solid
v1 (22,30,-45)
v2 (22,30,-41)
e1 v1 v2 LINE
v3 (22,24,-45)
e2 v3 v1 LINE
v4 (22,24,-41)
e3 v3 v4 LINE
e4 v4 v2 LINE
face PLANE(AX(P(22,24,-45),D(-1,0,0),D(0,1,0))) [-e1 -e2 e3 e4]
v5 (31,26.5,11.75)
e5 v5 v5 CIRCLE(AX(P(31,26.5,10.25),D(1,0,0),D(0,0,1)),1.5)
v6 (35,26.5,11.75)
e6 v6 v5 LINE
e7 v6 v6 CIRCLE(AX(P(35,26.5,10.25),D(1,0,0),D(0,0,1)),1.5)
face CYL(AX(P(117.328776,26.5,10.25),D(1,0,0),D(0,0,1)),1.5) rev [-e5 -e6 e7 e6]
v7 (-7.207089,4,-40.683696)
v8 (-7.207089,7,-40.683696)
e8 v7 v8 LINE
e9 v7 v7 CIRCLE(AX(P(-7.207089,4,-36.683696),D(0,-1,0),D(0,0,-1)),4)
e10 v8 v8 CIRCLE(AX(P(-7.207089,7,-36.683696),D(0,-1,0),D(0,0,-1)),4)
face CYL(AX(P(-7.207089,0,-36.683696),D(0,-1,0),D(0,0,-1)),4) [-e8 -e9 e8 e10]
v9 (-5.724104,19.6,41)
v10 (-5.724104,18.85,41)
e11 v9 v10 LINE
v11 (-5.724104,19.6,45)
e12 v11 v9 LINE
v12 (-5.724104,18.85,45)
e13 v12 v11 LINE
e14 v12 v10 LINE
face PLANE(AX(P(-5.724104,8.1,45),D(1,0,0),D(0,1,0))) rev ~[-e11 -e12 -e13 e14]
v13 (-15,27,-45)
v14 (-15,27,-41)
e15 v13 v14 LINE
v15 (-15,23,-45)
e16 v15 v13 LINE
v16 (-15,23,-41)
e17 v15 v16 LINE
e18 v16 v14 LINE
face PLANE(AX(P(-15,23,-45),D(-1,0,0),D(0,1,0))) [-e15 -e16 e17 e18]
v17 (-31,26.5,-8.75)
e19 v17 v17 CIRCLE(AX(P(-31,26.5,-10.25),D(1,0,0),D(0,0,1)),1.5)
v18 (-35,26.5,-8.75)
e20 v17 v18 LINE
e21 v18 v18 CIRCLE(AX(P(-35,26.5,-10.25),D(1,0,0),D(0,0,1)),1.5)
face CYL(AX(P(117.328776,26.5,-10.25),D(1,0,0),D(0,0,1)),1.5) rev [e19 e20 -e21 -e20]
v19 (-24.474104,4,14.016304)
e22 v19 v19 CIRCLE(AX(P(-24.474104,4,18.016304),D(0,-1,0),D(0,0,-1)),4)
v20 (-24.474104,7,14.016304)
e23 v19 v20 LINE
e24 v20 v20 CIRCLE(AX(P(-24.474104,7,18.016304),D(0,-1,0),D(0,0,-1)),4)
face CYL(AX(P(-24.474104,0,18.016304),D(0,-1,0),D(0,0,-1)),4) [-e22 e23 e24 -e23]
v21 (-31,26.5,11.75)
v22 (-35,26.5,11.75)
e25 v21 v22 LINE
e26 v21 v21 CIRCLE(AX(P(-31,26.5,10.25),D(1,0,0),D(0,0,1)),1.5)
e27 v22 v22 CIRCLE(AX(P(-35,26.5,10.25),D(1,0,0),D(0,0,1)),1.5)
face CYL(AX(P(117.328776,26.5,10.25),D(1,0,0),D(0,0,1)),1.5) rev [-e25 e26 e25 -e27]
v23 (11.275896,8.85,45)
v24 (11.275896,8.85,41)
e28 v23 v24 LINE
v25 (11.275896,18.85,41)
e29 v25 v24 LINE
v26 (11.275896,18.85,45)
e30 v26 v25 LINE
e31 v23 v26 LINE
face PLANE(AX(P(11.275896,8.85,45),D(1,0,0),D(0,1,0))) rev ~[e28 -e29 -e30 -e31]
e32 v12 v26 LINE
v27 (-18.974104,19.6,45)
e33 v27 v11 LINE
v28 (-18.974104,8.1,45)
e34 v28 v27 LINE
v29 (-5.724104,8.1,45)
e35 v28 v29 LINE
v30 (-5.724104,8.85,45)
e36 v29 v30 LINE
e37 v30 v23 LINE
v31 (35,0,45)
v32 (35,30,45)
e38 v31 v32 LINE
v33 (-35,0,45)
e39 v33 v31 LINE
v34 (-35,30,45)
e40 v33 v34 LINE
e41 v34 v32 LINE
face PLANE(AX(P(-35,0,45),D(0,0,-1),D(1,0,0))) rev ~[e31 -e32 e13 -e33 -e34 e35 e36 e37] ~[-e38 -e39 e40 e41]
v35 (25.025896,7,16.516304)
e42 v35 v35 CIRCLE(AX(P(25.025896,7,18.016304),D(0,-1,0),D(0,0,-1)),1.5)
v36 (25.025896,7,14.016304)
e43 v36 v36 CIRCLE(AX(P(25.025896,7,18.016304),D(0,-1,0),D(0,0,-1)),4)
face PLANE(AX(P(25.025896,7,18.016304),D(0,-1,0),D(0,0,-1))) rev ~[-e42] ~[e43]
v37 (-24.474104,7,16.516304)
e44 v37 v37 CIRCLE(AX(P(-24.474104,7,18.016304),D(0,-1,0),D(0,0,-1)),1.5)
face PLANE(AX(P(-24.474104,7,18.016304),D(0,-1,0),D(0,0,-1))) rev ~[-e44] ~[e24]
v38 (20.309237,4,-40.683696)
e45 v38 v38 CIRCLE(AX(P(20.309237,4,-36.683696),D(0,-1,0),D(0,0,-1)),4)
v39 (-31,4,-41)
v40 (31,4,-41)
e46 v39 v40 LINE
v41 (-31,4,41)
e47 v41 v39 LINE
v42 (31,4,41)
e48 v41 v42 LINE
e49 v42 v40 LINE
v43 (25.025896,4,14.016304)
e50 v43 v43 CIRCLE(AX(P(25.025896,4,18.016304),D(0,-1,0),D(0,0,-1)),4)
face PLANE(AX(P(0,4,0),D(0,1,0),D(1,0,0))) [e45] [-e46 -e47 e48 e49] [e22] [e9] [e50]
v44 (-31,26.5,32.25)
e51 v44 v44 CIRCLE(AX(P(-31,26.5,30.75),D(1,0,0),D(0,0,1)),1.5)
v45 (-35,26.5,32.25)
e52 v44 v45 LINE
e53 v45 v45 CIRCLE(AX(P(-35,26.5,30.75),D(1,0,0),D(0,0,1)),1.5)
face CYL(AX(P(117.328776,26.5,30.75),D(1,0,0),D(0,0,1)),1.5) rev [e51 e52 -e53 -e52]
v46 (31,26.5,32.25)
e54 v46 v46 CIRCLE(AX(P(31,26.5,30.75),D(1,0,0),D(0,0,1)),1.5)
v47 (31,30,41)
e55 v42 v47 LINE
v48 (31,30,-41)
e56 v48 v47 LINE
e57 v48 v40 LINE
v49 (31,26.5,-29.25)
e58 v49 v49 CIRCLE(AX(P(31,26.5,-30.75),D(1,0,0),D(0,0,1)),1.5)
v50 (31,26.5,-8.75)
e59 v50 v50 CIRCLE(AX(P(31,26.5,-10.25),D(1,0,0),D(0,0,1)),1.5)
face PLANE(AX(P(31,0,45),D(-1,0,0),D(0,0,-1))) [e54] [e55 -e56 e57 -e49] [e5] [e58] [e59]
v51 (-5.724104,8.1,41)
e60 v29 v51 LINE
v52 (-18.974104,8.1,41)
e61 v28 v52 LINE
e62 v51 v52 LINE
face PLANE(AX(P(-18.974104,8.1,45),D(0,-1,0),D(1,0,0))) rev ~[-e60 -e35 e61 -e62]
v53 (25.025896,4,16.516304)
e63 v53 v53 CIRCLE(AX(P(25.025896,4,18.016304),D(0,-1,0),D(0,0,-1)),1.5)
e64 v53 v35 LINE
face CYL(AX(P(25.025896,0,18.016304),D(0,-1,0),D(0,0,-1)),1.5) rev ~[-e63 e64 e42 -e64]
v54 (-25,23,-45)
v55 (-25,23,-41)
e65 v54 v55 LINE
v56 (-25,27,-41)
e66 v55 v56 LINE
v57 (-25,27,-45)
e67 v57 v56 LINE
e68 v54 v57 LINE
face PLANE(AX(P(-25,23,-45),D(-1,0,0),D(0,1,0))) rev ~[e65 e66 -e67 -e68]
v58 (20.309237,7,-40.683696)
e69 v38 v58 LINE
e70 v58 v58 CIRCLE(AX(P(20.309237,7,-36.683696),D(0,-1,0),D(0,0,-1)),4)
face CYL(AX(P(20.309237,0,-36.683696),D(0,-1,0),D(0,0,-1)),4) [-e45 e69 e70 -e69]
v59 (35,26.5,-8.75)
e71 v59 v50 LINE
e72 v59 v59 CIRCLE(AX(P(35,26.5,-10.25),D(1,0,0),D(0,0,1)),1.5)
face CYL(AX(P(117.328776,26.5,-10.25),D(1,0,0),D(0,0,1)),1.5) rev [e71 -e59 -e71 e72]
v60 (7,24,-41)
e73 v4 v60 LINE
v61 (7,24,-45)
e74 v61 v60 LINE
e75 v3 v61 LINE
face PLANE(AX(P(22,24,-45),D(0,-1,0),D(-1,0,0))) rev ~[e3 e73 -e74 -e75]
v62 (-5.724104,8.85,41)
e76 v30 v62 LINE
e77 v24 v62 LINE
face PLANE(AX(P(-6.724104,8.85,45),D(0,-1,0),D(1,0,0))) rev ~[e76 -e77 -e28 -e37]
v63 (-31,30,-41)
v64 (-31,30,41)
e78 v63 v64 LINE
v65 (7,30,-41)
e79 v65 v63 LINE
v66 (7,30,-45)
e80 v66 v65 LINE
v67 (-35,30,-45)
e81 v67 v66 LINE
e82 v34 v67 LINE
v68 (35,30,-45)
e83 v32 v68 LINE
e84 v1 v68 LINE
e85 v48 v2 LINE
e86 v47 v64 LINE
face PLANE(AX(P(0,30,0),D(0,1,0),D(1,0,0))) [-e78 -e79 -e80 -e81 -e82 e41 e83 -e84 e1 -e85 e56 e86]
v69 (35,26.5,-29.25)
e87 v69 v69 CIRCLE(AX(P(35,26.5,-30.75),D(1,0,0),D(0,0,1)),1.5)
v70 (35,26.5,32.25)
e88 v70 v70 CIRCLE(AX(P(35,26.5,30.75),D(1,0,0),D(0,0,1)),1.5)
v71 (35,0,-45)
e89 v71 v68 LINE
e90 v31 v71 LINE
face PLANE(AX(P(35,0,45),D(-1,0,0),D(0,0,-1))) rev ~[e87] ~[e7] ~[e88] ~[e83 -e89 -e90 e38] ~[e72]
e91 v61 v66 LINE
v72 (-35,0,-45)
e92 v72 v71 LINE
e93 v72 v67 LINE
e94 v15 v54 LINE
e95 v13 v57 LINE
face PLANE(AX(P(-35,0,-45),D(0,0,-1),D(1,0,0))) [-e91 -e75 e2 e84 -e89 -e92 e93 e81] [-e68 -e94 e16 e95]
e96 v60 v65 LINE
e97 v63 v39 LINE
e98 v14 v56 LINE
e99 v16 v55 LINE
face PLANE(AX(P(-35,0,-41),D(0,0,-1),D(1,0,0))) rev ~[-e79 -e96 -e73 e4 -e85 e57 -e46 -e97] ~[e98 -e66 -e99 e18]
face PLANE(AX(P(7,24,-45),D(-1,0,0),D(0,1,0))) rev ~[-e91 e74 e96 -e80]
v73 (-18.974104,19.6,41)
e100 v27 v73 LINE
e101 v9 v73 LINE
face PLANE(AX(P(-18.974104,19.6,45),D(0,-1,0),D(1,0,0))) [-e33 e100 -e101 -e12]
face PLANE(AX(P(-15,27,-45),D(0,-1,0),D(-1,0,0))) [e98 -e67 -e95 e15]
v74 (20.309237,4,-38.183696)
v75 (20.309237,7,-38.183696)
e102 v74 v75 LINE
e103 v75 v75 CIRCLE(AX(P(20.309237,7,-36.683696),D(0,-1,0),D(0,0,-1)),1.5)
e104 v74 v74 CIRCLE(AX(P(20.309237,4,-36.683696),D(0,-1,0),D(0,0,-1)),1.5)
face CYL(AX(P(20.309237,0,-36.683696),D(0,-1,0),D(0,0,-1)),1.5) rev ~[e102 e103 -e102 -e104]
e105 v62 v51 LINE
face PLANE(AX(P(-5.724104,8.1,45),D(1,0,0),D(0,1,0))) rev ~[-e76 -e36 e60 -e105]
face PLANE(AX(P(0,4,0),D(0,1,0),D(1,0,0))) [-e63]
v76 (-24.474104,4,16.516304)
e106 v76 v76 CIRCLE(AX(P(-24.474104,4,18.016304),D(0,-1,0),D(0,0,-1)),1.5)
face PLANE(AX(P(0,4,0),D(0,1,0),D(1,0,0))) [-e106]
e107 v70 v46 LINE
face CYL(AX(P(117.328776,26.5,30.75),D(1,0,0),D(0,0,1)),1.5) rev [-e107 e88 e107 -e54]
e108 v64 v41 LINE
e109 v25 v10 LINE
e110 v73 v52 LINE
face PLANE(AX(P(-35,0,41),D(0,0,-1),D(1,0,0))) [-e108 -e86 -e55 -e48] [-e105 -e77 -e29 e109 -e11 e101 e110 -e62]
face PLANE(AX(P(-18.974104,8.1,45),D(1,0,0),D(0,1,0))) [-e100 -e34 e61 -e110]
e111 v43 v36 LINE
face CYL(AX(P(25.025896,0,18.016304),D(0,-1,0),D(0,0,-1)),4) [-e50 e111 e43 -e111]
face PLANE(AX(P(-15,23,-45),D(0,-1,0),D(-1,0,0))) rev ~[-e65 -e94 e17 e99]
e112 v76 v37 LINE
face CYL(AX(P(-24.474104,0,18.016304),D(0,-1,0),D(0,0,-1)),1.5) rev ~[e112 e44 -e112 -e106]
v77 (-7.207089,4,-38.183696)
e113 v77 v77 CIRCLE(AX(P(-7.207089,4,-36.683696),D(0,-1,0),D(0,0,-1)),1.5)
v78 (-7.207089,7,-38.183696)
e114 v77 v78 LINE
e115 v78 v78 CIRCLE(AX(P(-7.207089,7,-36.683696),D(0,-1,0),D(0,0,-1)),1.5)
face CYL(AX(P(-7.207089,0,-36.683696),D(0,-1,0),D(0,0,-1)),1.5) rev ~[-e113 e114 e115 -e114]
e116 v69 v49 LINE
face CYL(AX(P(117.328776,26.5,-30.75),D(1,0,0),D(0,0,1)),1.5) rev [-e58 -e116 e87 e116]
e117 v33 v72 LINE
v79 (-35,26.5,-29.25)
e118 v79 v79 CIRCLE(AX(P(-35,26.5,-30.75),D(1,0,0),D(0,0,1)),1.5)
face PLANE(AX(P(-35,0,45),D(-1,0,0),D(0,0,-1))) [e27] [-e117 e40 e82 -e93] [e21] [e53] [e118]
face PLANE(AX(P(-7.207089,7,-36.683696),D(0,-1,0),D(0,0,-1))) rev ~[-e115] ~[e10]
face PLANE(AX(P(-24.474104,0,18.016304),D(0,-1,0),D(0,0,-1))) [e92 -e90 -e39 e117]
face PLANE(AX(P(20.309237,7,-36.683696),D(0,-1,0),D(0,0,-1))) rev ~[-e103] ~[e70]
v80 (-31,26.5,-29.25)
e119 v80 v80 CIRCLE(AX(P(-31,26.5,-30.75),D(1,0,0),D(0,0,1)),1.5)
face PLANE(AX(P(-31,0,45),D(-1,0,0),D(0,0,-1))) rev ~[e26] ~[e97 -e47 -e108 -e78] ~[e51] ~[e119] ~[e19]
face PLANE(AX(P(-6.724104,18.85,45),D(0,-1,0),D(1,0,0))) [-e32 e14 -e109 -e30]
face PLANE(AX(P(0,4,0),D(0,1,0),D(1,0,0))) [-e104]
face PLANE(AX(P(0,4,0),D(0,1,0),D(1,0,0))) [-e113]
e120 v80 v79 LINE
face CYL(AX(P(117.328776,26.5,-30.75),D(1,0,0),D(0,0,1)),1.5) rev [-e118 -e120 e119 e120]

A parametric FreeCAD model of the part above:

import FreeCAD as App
import Part
import Sketcher
Q = App.Units.Quantity


def faces_at(feature, points):
    """Names of the faces that lie closest to the given points."""
    faces = feature.Shape.Faces
    near = lambda p: min(range(len(faces)), key=lambda i: faces[i].distToShape(Part.Vertex(*p))[0])
    return sorted({f"Face{near(p) + 1}" for p in points})


def add_polygon(sketch, points):
    """Adds a closed chain of lines whose ends are joined by coincident constraints."""
    first, n = sketch.GeometryCount, len(points)
    for a, b in zip(points, points[1:] + points[:1]):
        sketch.addGeometry(Part.LineSegment(App.Vector(*a, 0), App.Vector(*b, 0)), False)
    for i in range(n):
        sketch.addConstraint(Sketcher.Constraint("Coincident", first + i, 2, first + (i + 1) % n, 1))

doc = App.newDocument("Part")
body = doc.addObject("PartDesign::Body", "Body")

# Sketch on XZ plane
sketch1 = body.newObject("Sketcher::SketchObject", "Sketch")
sketch1.AttachmentSupport = (doc.getObject("XZ_Plane"), [""])
sketch1.MapMode = "FlatFace"
add_polygon(sketch1, [(-35, -45), (-35, 45), (35, 45), (35, -45)])  # lines 0-3
sketch1.addConstraint([
    Sketcher.Constraint("Vertical", 0),
    Sketcher.Constraint("Horizontal", 1),
    Sketcher.Constraint("Vertical", 2),
    Sketcher.Constraint("Horizontal", 3),
    Sketcher.Constraint("Symmetric", 0, 2, 2, 2, -1, 1),
    Sketcher.Constraint("DistanceX", 1, 1, 1, 2, Q("70 mm")),
    Sketcher.Constraint("DistanceY", 0, 1, 0, 2, Q("90 mm")),
])
pad1 = body.newObject("PartDesign::Pad", "Pad")
pad1.Profile = sketch1
pad1.Length = 30
pad1.Reversed = True
doc.recompute()

thickness = body.newObject("PartDesign::Thickness", "Thickness")
thickness.Base = (pad1, faces_at(pad1, [(0, 30, 0)]))
thickness.Value = 4
thickness.Reversed = True
thickness.Join = "Intersection"

# Sketch on XY plane
sketch2 = body.newObject("Sketcher::SketchObject", "Sketch001")
sketch2.AttachmentSupport = (doc.getObject("XY_Plane"), [""])
sketch2.MapMode = "FlatFace"
sketch2.AttachmentOffset = App.Placement(App.Vector(0, 0, 45), App.Rotation())
add_polygon(sketch2, [(-19, 20), (-19, 8), (-6, 8), (-6, 20)])  # lines 0-3
sketch2.addConstraint([
    Sketcher.Constraint("Vertical", 0),
    Sketcher.Constraint("Horizontal", 1),
    Sketcher.Constraint("Vertical", 2),
    Sketcher.Constraint("Horizontal", 3),
    Sketcher.Constraint("DistanceY", 0, 2, 0, 1, Q("11.5 mm")),
    Sketcher.Constraint("DistanceX", 1, 1, 1, 2, Q("13.25 mm")),
    Sketcher.Constraint("DistanceY", -1, 1, 0, 2, Q("8.1 mm")),
    Sketcher.Constraint("DistanceX", 0, 2, -1, 1, Q("18.974104 mm")),
])
pocket1 = body.newObject("PartDesign::Pocket", "Pocket")
pocket1.Profile = sketch2
pocket1.Length = 7

# Sketch on XY plane
sketch3 = body.newObject("Sketcher::SketchObject", "Sketch002")
sketch3.AttachmentSupport = (doc.getObject("XY_Plane"), [""])
sketch3.MapMode = "FlatFace"
sketch3.AttachmentOffset = App.Placement(App.Vector(0, 0, 45), App.Rotation())
add_polygon(sketch3, [(-7, 19), (-7, 9), (11, 9), (11, 19)])  # lines 0-3
sketch3.addConstraint([
    Sketcher.Constraint("Vertical", 0),
    Sketcher.Constraint("Horizontal", 1),
    Sketcher.Constraint("Vertical", 2),
    Sketcher.Constraint("Horizontal", 3),
    Sketcher.Constraint("DistanceX", 1, 1, 1, 2, Q("18 mm")),
    Sketcher.Constraint("DistanceY", 0, 2, 0, 1, Q("10 mm")),
    Sketcher.Constraint("DistanceY", -1, 1, 0, 2, Q("8.85 mm")),
    Sketcher.Constraint("DistanceX", 0, 2, -1, 1, Q("6.724104 mm")),
])
pocket2 = body.newObject("PartDesign::Pocket", "Pocket001")
pocket2.Profile = sketch3
pocket2.Length = 7

# Sketch on XY plane
sketch4 = body.newObject("Sketcher::SketchObject", "Sketch003")
sketch4.AttachmentSupport = (doc.getObject("XY_Plane"), [""])
sketch4.MapMode = "FlatFace"
sketch4.AttachmentOffset = App.Placement(App.Vector(0, 0, -45), App.Rotation())
add_polygon(sketch4, [(22, 30), (22, 24), (7, 24), (7, 30)])  # lines 0-3
sketch4.addConstraint([
    Sketcher.Constraint("Vertical", 0),
    Sketcher.Constraint("Horizontal", 1),
    Sketcher.Constraint("Vertical", 2),
    Sketcher.Constraint("Horizontal", 3),
    Sketcher.Constraint("DistanceX", 1, 2, 1, 1, Q("15 mm")),
    Sketcher.Constraint("DistanceY", 0, 2, 0, 1, Q("6 mm")),
    Sketcher.Constraint("DistanceX", -1, 1, 0, 2, Q("22 mm")),
    Sketcher.Constraint("DistanceY", -1, 1, 0, 2, Q("24 mm")),
])
pocket3 = body.newObject("PartDesign::Pocket", "Pocket002")
pocket3.Profile = sketch4
pocket3.Length = 7
pocket3.Reversed = True

# Sketch on XZ plane
sketch5 = body.newObject("Sketcher::SketchObject", "Sketch004")
sketch5.AttachmentSupport = (doc.getObject("XZ_Plane"), [""])
sketch5.MapMode = "FlatFace"
sketch5.addGeometry([
    Part.Circle(App.Vector(-24.5, 18, 0), App.Vector(0, 0, 1), 4),  # 0
    Part.Circle(App.Vector(-24.5, 18, 0), App.Vector(0, 0, 1), 1.5),  # 1
    Part.Circle(App.Vector(25, 18, 0), App.Vector(0, 0, 1), 4),  # 2
    Part.Circle(App.Vector(25, 18, 0), App.Vector(0, 0, 1), 1.5),  # 3
    Part.Circle(App.Vector(20.3, -36.7, 0), App.Vector(0, 0, 1), 4),  # 4
    Part.Circle(App.Vector(20.3, -36.7, 0), App.Vector(0, 0, 1), 1.5),  # 5
    Part.Circle(App.Vector(-7.2, -36.7, 0), App.Vector(0, 0, 1), 4),  # 6
    Part.Circle(App.Vector(-7.2, -36.7, 0), App.Vector(0, 0, 1), 1.5),  # 7
], False)
sketch5.addConstraint([
    Sketcher.Constraint("Coincident", 1, 3, 0, 3),
    Sketcher.Constraint("Coincident", 3, 3, 2, 3),
    Sketcher.Constraint("Coincident", 5, 3, 4, 3),
    Sketcher.Constraint("Coincident", 7, 3, 6, 3),
    Sketcher.Constraint("Equal", 0, 2),
    Sketcher.Constraint("Equal", 1, 3),
    Sketcher.Constraint("Equal", 2, 4),
    Sketcher.Constraint("Equal", 3, 5),
    Sketcher.Constraint("Equal", 4, 6),
    Sketcher.Constraint("Equal", 5, 7),
    Sketcher.Constraint("Horizontal", 1, 3, 2, 3),
    Sketcher.Constraint("Horizontal", 5, 3, 6, 3),
    Sketcher.Constraint("Diameter", 0, Q("8 mm")),
    Sketcher.Constraint("Diameter", 1, Q("3 mm")),
    Sketcher.Constraint("DistanceX", 0, 3, 2, 3, Q("49.5 mm")),
    Sketcher.Constraint("DistanceY", 4, 3, 2, 3, Q("54.7 mm")),
    Sketcher.Constraint("DistanceX", 6, 3, -1, 1, Q("7.207089 mm")),
    Sketcher.Constraint("DistanceX", 4, 3, 2, 3, Q("4.71666 mm")),
    Sketcher.Constraint("DistanceX", 0, 3, -1, 1, Q("24.474104 mm")),
    Sketcher.Constraint("DistanceY", -1, 1, 0, 3, Q("18.016304 mm")),
])
pad2 = body.newObject("PartDesign::Pad", "Pad001")
pad2.Profile = sketch5
pad2.Length = 7
pad2.Reversed = True

# Sketch on YZ plane
sketch6 = body.newObject("Sketcher::SketchObject", "Sketch005")
sketch6.AttachmentSupport = (doc.getObject("YZ_Plane"), [""])
sketch6.MapMode = "FlatFace"
sketch6.AttachmentOffset = App.Placement(App.Vector(0, 0, 31), App.Rotation())
sketch6.addGeometry([
    Part.Circle(App.Vector(26.5, -30.8, 0), App.Vector(0, 0, 1), 1.5),
    Part.Circle(App.Vector(26.5, -10.2, 0), App.Vector(0, 0, 1), 1.5),
    Part.Circle(App.Vector(26.5, 10.2, 0), App.Vector(0, 0, 1), 1.5),
    Part.Circle(App.Vector(26.5, 30.8, 0), App.Vector(0, 0, 1), 1.5),
], False)
sketch6.addConstraint([
    Sketcher.Constraint("Equal", 0, 1),
    Sketcher.Constraint("Equal", 1, 2),
    Sketcher.Constraint("Equal", 2, 3),
    Sketcher.Constraint("Symmetric", 1, 3, 2, 3, -1),
    Sketcher.Constraint("Symmetric", 0, 3, 3, 3, -1),
    Sketcher.Constraint("Vertical", 0, 3, 1, 3),
    Sketcher.Constraint("Diameter", 0, Q("3 mm")),
    Sketcher.Constraint("DistanceY", 0, 3, 2, 3, Q("41 mm")),
    Sketcher.Constraint("DistanceX", -1, 1, 0, 3, Q("26.5 mm")),
    Sketcher.Constraint("DistanceY", 0, 3, 1, 3, Q("20.5 mm")),
])
pocket4 = body.newObject("PartDesign::Pocket", "Pocket003")
pocket4.Profile = sketch6
pocket4.Type = "ThroughAll"
pocket4.Midplane = True

# Sketch on XY plane
sketch7 = body.newObject("Sketcher::SketchObject", "Sketch006")
sketch7.AttachmentSupport = (doc.getObject("XY_Plane"), [""])
sketch7.MapMode = "FlatFace"
sketch7.AttachmentOffset = App.Placement(App.Vector(0, 0, -45), App.Rotation())
add_polygon(sketch7, [(-15, 27), (-15, 23), (-25, 23), (-25, 27)])  # lines 0-3
sketch7.addConstraint([
    Sketcher.Constraint("Vertical", 0),
    Sketcher.Constraint("Horizontal", 1),
    Sketcher.Constraint("Vertical", 2),
    Sketcher.Constraint("Horizontal", 3),
    Sketcher.Constraint("DistanceX", 1, 2, 1, 1, Q("10 mm")),
    Sketcher.Constraint("DistanceY", 0, 2, 0, 1, Q("4 mm")),
    Sketcher.Constraint("DistanceX", 0, 2, -1, 1, Q("15 mm")),
    Sketcher.Constraint("DistanceY", -1, 1, 0, 2, Q("23 mm")),
])
pocket5 = body.newObject("PartDesign::Pocket", "Pocket004")
pocket5.Profile = sketch7
pocket5.Length = 7
pocket5.Reversed = True

doc.recompute()
